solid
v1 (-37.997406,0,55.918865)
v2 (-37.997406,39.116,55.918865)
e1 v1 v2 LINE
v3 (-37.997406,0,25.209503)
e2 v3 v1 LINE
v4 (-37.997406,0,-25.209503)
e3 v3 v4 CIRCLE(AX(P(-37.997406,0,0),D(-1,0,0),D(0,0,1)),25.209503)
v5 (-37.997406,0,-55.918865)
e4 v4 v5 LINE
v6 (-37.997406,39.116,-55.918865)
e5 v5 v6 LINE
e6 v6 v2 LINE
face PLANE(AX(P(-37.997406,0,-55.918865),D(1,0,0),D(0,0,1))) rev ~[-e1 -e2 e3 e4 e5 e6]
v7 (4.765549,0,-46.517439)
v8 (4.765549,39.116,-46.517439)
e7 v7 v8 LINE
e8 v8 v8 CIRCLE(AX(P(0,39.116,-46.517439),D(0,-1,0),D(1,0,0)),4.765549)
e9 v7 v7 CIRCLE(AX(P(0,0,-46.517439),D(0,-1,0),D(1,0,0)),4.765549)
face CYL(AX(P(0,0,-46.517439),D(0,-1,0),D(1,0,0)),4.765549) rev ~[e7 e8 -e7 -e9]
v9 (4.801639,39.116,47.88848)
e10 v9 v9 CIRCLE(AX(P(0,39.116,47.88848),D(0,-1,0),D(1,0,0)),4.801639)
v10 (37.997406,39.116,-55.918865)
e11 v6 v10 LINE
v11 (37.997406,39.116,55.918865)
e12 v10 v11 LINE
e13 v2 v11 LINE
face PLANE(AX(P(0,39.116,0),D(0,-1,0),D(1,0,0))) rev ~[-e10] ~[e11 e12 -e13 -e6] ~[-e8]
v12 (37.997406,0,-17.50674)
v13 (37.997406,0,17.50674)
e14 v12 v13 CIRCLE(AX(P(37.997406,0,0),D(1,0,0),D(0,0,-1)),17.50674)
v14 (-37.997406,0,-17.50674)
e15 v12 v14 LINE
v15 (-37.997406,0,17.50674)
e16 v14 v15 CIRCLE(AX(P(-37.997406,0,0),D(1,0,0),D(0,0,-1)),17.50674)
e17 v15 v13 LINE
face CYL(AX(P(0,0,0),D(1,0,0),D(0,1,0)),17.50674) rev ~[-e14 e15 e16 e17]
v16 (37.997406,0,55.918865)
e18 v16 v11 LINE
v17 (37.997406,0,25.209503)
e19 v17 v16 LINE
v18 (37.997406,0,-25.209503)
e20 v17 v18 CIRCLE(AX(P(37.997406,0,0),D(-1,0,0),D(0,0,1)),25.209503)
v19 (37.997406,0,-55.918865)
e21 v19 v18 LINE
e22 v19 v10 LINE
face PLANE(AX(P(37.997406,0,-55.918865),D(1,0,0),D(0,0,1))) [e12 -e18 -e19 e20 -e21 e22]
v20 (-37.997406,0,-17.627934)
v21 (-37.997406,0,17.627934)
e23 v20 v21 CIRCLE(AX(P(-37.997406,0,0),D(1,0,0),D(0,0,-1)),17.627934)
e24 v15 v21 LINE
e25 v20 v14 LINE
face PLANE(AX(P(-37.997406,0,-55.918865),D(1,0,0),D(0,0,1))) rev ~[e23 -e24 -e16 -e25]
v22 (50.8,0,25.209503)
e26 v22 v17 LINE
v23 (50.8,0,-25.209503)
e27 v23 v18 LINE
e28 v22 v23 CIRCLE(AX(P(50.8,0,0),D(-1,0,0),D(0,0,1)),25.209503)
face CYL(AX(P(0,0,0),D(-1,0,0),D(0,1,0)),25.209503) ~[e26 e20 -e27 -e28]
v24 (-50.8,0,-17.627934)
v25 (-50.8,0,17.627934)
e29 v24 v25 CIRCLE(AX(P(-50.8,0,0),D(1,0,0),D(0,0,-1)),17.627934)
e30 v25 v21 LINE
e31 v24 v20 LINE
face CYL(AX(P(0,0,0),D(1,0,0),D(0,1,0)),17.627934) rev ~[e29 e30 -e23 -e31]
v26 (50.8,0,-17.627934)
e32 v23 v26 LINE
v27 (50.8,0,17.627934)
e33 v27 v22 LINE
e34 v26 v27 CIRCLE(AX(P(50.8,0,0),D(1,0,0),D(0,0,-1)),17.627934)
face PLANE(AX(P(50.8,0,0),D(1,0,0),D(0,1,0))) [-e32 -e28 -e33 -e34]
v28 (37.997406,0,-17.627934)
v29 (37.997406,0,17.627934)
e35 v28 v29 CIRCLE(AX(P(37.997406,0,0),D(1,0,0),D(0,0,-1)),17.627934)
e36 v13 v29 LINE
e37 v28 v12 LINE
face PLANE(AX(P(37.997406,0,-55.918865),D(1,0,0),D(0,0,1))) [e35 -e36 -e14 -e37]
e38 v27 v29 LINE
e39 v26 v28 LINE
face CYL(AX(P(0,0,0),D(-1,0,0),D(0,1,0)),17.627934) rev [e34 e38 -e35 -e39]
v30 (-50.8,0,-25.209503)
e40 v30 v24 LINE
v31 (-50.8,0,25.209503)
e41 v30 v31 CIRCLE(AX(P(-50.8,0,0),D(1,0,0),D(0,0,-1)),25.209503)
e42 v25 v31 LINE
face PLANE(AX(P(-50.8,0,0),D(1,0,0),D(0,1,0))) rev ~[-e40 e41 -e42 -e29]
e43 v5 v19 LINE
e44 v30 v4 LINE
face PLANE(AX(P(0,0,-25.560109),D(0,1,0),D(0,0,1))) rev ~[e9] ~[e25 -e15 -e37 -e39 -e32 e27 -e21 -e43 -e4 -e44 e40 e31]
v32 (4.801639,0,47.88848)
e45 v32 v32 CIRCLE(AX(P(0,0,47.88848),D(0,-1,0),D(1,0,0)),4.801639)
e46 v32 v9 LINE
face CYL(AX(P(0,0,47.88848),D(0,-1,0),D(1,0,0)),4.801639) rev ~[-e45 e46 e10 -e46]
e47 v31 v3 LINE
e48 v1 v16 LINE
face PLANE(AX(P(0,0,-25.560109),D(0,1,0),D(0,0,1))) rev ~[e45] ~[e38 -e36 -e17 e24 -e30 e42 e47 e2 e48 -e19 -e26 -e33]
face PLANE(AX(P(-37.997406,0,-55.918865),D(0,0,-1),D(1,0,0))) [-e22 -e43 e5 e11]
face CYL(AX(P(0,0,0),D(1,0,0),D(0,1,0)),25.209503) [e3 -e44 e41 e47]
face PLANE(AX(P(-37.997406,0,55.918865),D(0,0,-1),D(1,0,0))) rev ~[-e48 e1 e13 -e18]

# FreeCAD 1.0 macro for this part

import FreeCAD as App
import Part
import Sketcher
from FreeCAD import Vector
Q = App.Units.Quantity


def add_polygon(sketch, points):
    """Adds a closed chain of lines whose ends are joined by coincident constraints."""
    first, n = sketch.GeometryCount, len(points)
    for a, b in zip(points, points[1:] + points[:1]):
        sketch.addGeometry(Part.LineSegment(App.Vector(*a, 0), App.Vector(*b, 0)), False)
    for i in range(n):
        sketch.addConstraint(Sketcher.Constraint("Coincident", first + i, 2, first + (i + 1) % n, 1))

doc = App.newDocument("Part")
body = doc.addObject("PartDesign::Body", "Body")

# Sketch on XZ plane
sketch1 = body.newObject("Sketcher::SketchObject", "Sketch")
sketch1.AttachmentSupport = (doc.getObject("XZ_Plane"), [""])
sketch1.MapMode = "FlatFace"
add_polygon(sketch1, [(-38, 55.9), (-38, -55.9), (38, -55.9), (38, 55.9)])  # lines 0-3
sketch1.addGeometry(Part.Circle(Vector(0, -46.5, 0), Vector(0, 0, 1), 4.8), False)  # 4
sketch1.addGeometry(Part.Circle(Vector(0, 47.9, 0), Vector(0, 0, 1), 4.8), False)  # 5
sketch1.addConstraint([
    Sketcher.Constraint("Vertical", 0),
    Sketcher.Constraint("Horizontal", 1),
    Sketcher.Constraint("Vertical", 2),
    Sketcher.Constraint("Horizontal", 3),
    Sketcher.Constraint("Symmetric", 0, 2, 2, 2, -1, 1),
    Sketcher.Constraint("PointOnObject", 4, 3, -2),
    Sketcher.Constraint("PointOnObject", 5, 3, -2),
    Sketcher.Constraint("Diameter", 4, Q("9.531099 mm")),
    Sketcher.Constraint("Diameter", 5, Q("9.603277 mm")),
    Sketcher.Constraint("DistanceX", 1, 1, 1, 2, Q("75.994812 mm")),
    Sketcher.Constraint("DistanceY", 0, 2, 0, 1, Q("111.83773 mm")),
    Sketcher.Constraint("DistanceY", 4, 3, -1, 1, Q("46.517439 mm")),
    Sketcher.Constraint("DistanceY", -1, 1, 5, 3, Q("47.88848 mm")),
])
pad1 = body.newObject("PartDesign::Pad", "Pad")
pad1.Profile = sketch1
pad1.Length = Q("1.54 in")
pad1.Reversed = True

# Sketch on YZ plane
sketch2 = body.newObject("Sketcher::SketchObject", "Sketch001")
sketch2.AttachmentSupport = (doc.getObject("YZ_Plane"), [""])
sketch2.MapMode = "FlatFace"
sketch2.addGeometry([
    Part.Circle(Vector(0, 0, 0), Vector(0, 0, 1), 25),
    Part.Circle(Vector(0, 0, 0), Vector(0, 0, 1), 18),
], False)
sketch2.addConstraint([
    Sketcher.Constraint("Coincident", 0, 3, -1, 1),
    Sketcher.Constraint("Coincident", 1, 3, -1, 1),
    Sketcher.Constraint("Diameter", 1, Q("35.255868 mm")),
    Sketcher.Constraint("Diameter", 0, Q("50.419006 mm")),
])
pad2 = body.newObject("PartDesign::Pad", "Pad001")
pad2.Profile = sketch2
pad2.Type = "TwoLengths"
pad2.Length = Q("2 in")
pad2.Length2 = Q("2 in")

# Sketch on YZ plane
sketch3 = body.newObject("Sketcher::SketchObject", "Sketch002")
sketch3.AttachmentSupport = (doc.getObject("YZ_Plane"), [""])
sketch3.MapMode = "FlatFace"
sketch3.addGeometry(Part.Circle(Vector(0, 0, 0), Vector(0, 0, 1), 18), False)
sketch3.addConstraint([
    Sketcher.Constraint("Coincident", 0, 3, -1, 1),
    Sketcher.Constraint("Diameter", 0, Q("35.013479 mm")),
])
pocket1 = body.newObject("PartDesign::Pocket", "Pocket")
pocket1.Profile = sketch3
pocket1.Type = "ThroughAll"
pocket1.Midplane = True

# Sketch on YZ plane
sketch4 = body.newObject("Sketcher::SketchObject", "Sketch003")
sketch4.AttachmentSupport = (doc.getObject("YZ_Plane"), [""])
sketch4.MapMode = "FlatFace"
add_polygon(sketch4, [(-39, 26), (-39, -26), (0, -26), (0, 26)])  # lines 0-3
sketch4.addConstraint([
    Sketcher.Constraint("Vertical", 0),
    Sketcher.Constraint("Horizontal", 1),
    Sketcher.Constraint("Vertical", 2),
    Sketcher.Constraint("Horizontal", 3),
    Sketcher.Constraint("Symmetric", 1, 2, 2, 2, -1, 1),
    Sketcher.Constraint("DistanceY", 0, 2, 0, 1, Q("51.12022 mm")),
    Sketcher.Constraint("DistanceX", 1, 1, 1, 2, Q("38.584996 mm")),
])
pocket2 = body.newObject("PartDesign::Pocket", "Pocket001")
pocket2.Profile = sketch4
pocket2.Type = "ThroughAll"
pocket2.Midplane = True

doc.recompute()
